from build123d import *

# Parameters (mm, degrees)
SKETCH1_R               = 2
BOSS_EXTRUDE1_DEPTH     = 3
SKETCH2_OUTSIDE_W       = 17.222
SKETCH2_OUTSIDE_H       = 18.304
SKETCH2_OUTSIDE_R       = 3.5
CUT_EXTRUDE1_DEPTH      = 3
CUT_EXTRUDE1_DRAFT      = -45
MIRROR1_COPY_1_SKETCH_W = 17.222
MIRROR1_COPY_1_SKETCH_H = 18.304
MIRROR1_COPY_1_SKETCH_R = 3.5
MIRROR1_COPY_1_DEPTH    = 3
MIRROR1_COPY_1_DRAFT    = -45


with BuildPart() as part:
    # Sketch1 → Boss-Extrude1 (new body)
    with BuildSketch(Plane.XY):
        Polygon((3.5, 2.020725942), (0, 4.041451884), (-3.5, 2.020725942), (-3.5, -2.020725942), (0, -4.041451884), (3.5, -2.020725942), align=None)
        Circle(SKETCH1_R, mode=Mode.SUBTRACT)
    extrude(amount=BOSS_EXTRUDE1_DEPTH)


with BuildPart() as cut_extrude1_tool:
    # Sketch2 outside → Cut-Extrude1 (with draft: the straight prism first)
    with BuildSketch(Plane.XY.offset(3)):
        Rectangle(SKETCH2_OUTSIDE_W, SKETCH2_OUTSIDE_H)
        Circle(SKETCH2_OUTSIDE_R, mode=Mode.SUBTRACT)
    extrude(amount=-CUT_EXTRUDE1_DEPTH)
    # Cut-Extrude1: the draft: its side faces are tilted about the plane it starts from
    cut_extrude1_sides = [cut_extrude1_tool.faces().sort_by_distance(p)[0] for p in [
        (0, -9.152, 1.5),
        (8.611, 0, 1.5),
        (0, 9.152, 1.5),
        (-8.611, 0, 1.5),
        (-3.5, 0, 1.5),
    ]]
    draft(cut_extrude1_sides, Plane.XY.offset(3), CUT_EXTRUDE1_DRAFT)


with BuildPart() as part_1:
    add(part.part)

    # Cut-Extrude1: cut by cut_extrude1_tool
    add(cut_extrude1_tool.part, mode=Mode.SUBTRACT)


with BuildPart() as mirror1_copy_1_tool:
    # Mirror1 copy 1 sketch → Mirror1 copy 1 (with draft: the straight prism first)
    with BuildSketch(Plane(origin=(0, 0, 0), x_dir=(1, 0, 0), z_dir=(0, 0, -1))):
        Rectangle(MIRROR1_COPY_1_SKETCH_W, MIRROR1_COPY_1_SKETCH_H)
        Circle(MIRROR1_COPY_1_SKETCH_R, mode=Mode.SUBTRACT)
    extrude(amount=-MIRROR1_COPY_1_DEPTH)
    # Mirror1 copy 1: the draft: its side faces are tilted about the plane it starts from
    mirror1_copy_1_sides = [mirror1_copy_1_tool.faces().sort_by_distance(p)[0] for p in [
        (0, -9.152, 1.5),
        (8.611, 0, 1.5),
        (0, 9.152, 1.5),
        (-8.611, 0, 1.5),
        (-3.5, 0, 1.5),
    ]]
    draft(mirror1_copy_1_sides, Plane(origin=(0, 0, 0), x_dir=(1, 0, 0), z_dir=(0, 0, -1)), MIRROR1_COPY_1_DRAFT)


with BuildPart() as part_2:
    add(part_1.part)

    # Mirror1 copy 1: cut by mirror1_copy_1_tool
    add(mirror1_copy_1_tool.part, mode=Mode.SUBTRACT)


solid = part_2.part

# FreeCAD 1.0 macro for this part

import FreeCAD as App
import Part
import Sketcher

V = App.Vector
Q = App.Units.Quantity


def faces_at(feature, points):
    """Names of the faces that lie closest to the given points."""
    faces = feature.Shape.Faces
    near = lambda p: min(range(len(faces)), key=lambda i: faces[i].distToShape(Part.Vertex(*p))[0])
    return sorted({f"Face{near(p) + 1}" for p in points})

doc = App.newDocument("Part")
body = doc.addObject("PartDesign::Body", "Body")

# Sketch on XY plane
sketch1 = doc.addObject("Sketcher::SketchObject", "Sketch")
body.addObject(sketch1)
sketch1.AttachmentSupport = (doc.XY_Plane, [""])
sketch1.MapMode = "FlatFace"
sketch1.addGeometry(Part.LineSegment(V(3.5, 2.020726, 0), V(0, 4.041452, 0)), False)
sketch1.addGeometry(Part.LineSegment(V(0, 4.041452, 0), V(-3.5, 2.020726, 0)), False)
sketch1.addGeometry(Part.LineSegment(V(-3.5, 2.020726, 0), V(-3.5, -2.020726, 0)), False)
sketch1.addGeometry(Part.LineSegment(V(-3.5, -2.020726, 0), V(0, -4.041452, 0)), False)
sketch1.addGeometry(Part.LineSegment(V(0, -4.041452, 0), V(3.5, -2.020726, 0)), False)
sketch1.addGeometry(Part.LineSegment(V(3.5, -2.020726, 0), V(3.5, 2.020726, 0)), False)
sketch1.addGeometry(Part.Circle(V(0, 0, 0), V(0, 0, 1), 2), False)
sketch1.addConstraint(Sketcher.Constraint("Coincident", 0, 2, 1, 1))
sketch1.addConstraint(Sketcher.Constraint("Coincident", 1, 2, 2, 1))
sketch1.addConstraint(Sketcher.Constraint("Coincident", 2, 2, 3, 1))
sketch1.addConstraint(Sketcher.Constraint("Coincident", 3, 2, 4, 1))
sketch1.addConstraint(Sketcher.Constraint("Coincident", 4, 2, 5, 1))
sketch1.addConstraint(Sketcher.Constraint("Coincident", 5, 2, 0, 1))
sketch1.addConstraint(Sketcher.Constraint("Vertical", 2))
sketch1.addConstraint(Sketcher.Constraint("Vertical", 5))
sketch1.addConstraint(Sketcher.Constraint("Coincident", 6, 3, -1, 1))
sketch1.addConstraint(Sketcher.Constraint("Symmetric", 0, 2, 3, 2, -1, 1))
sketch1.addConstraint(Sketcher.Constraint("Symmetric", 1, 2, 4, 2, -1, 1))
sketch1.addConstraint(Sketcher.Constraint("PointOnObject", 0, 2, -2))
sketch1.addConstraint(Sketcher.Constraint("Parallel", 0, 3))
sketch1.addConstraint(Sketcher.Constraint("Horizontal", 2, 2, 4, 2))
sketch1.addConstraint(Sketcher.Constraint("Diameter", 6, Q("4 mm")))
sketch1.addConstraint(Sketcher.Constraint("Angle", 0, Q("150 deg")))
sketch1.addConstraint(Sketcher.Constraint("DistanceX", 2, 2, 4, 2, Q("7 mm")))
sketch1.addConstraint(Sketcher.Constraint("DistanceY", 2, 2, 2, 1, Q("4.041452 mm")))
pad1 = doc.addObject("PartDesign::Pad", "Pad")
body.addObject(pad1)
pad1.Profile = sketch1
pad1.Length = 3
body2 = doc.addObject("PartDesign::Body", "Body001")

# Sketch on XY plane
sketch2 = doc.addObject("Sketcher::SketchObject", "Sketch001")
body2.addObject(sketch2)
sketch2.AttachmentSupport = (doc.getObject("XY_Plane001"), [""])
sketch2.MapMode = "FlatFace"
sketch2.AttachmentOffset = App.Placement(V(0, 0, 3), App.Rotation())
sketch2.addGeometry(Part.LineSegment(V(-8.611, 9.152, 0), V(-8.611, -9.152, 0)), False)
sketch2.addGeometry(Part.LineSegment(V(-8.611, -9.152, 0), V(8.611, -9.152, 0)), False)
sketch2.addGeometry(Part.LineSegment(V(8.611, -9.152, 0), V(8.611, 9.152, 0)), False)
sketch2.addGeometry(Part.LineSegment(V(8.611, 9.152, 0), V(-8.611, 9.152, 0)), False)
sketch2.addGeometry(Part.Circle(V(0, 0, 0), V(0, 0, 1), 3.5), False)
sketch2.addConstraint(Sketcher.Constraint("Coincident", 0, 2, 1, 1))
sketch2.addConstraint(Sketcher.Constraint("Coincident", 1, 2, 2, 1))
sketch2.addConstraint(Sketcher.Constraint("Coincident", 2, 2, 3, 1))
sketch2.addConstraint(Sketcher.Constraint("Coincident", 3, 2, 0, 1))
sketch2.addConstraint(Sketcher.Constraint("Vertical", 0))
sketch2.addConstraint(Sketcher.Constraint("Horizontal", 1))
sketch2.addConstraint(Sketcher.Constraint("Vertical", 2))
sketch2.addConstraint(Sketcher.Constraint("Horizontal", 3))
sketch2.addConstraint(Sketcher.Constraint("Coincident", 4, 3, -1, 1))
sketch2.addConstraint(Sketcher.Constraint("Symmetric", 0, 2, 2, 2, -1, 1))
sketch2.addConstraint(Sketcher.Constraint("Diameter", 4, Q("7 mm")))
sketch2.addConstraint(Sketcher.Constraint("DistanceX", 1, 1, 1, 2, Q("17.222 mm")))
sketch2.addConstraint(Sketcher.Constraint("DistanceY", 0, 2, 0, 1, Q("18.304 mm")))
pad2 = doc.addObject("PartDesign::Pad", "Pad001")
body2.addObject(pad2)
pad2.Profile = sketch2
pad2.Length = 3
pad2.Reversed = True
doc.recompute()

datumplane = doc.addObject("PartDesign::Plane", "DatumPlane")
body2.addObject(datumplane)
datumplane.AttachmentSupport = (doc.getObject("XY_Plane001"), [""])
datumplane.MapMode = "FlatFace"
datumplane.AttachmentOffset = App.Placement(V(0, 0, 3), App.Rotation())
draft = doc.addObject("PartDesign::Draft", "Draft")
body2.addObject(draft)
draft.Base = (pad2, faces_at(pad2, [
    (0, -9.152, 1.5),
    (8.611, 0, 1.5),
    (0, 9.152, 1.5),
    (-8.611, 0, 1.5),
    (-3.5, 0, 1.5),
]))
draft.NeutralPlane = (datumplane, [""])
draft.Angle = 45
draft.Reversed = True
doc.recompute()

boolean = doc.addObject("PartDesign::Boolean", "Boolean")
body.addObject(boolean)
boolean.Type = "Cut"
boolean.addObjects([body2])
body3 = doc.addObject("PartDesign::Body", "Body002")

# Sketch on XY plane
sketch3 = doc.addObject("Sketcher::SketchObject", "Sketch002")
body3.addObject(sketch3)
sketch3.AttachmentSupport = (doc.getObject("XY_Plane002"), [""])
sketch3.MapMode = "FlatFace"
sketch3.addGeometry(Part.LineSegment(V(-8.611, -9.152, 0), V(-8.611, 9.152, 0)), False)
sketch3.addGeometry(Part.LineSegment(V(-8.611, 9.152, 0), V(8.611, 9.152, 0)), False)
sketch3.addGeometry(Part.LineSegment(V(8.611, 9.152, 0), V(8.611, -9.152, 0)), False)
sketch3.addGeometry(Part.LineSegment(V(8.611, -9.152, 0), V(-8.611, -9.152, 0)), False)
sketch3.addGeometry(Part.Circle(V(0, 0, 0), V(0, 0, 1), 3.5), False)
sketch3.addConstraint(Sketcher.Constraint("Coincident", 0, 2, 1, 1))
sketch3.addConstraint(Sketcher.Constraint("Coincident", 1, 2, 2, 1))
sketch3.addConstraint(Sketcher.Constraint("Coincident", 2, 2, 3, 1))
sketch3.addConstraint(Sketcher.Constraint("Coincident", 3, 2, 0, 1))
sketch3.addConstraint(Sketcher.Constraint("Vertical", 0))
sketch3.addConstraint(Sketcher.Constraint("Horizontal", 1))
sketch3.addConstraint(Sketcher.Constraint("Vertical", 2))
sketch3.addConstraint(Sketcher.Constraint("Horizontal", 3))
sketch3.addConstraint(Sketcher.Constraint("Coincident", 4, 3, -1, 1))
sketch3.addConstraint(Sketcher.Constraint("Symmetric", 0, 2, 2, 2, -1, 1))
sketch3.addConstraint(Sketcher.Constraint("Diameter", 4, Q("7 mm")))
sketch3.addConstraint(Sketcher.Constraint("DistanceX", 1, 1, 1, 2, Q("17.222 mm")))
sketch3.addConstraint(Sketcher.Constraint("DistanceY", 0, 1, 0, 2, Q("18.304 mm")))
pad3 = doc.addObject("PartDesign::Pad", "Pad002")
body3.addObject(pad3)
pad3.Profile = sketch3
pad3.Length = 3
doc.recompute()

draft2 = doc.addObject("PartDesign::Draft", "Draft001")
body3.addObject(draft2)
draft2.Base = (pad3, faces_at(pad3, [
    (0, -9.152, 1.5),
    (8.611, 0, 1.5),
    (0, 9.152, 1.5),
    (-8.611, 0, 1.5),
    (-3.5, 0, 1.5),
]))
draft2.NeutralPlane = (doc.getObject("XY_Plane002"), [""])
draft2.Angle = 45
draft2.Reversed = False
doc.recompute()

boolean2 = doc.addObject("PartDesign::Boolean", "Boolean001")
body.addObject(boolean2)
boolean2.Type = "Cut"
boolean2.addObjects([body3])

doc.recompute()
